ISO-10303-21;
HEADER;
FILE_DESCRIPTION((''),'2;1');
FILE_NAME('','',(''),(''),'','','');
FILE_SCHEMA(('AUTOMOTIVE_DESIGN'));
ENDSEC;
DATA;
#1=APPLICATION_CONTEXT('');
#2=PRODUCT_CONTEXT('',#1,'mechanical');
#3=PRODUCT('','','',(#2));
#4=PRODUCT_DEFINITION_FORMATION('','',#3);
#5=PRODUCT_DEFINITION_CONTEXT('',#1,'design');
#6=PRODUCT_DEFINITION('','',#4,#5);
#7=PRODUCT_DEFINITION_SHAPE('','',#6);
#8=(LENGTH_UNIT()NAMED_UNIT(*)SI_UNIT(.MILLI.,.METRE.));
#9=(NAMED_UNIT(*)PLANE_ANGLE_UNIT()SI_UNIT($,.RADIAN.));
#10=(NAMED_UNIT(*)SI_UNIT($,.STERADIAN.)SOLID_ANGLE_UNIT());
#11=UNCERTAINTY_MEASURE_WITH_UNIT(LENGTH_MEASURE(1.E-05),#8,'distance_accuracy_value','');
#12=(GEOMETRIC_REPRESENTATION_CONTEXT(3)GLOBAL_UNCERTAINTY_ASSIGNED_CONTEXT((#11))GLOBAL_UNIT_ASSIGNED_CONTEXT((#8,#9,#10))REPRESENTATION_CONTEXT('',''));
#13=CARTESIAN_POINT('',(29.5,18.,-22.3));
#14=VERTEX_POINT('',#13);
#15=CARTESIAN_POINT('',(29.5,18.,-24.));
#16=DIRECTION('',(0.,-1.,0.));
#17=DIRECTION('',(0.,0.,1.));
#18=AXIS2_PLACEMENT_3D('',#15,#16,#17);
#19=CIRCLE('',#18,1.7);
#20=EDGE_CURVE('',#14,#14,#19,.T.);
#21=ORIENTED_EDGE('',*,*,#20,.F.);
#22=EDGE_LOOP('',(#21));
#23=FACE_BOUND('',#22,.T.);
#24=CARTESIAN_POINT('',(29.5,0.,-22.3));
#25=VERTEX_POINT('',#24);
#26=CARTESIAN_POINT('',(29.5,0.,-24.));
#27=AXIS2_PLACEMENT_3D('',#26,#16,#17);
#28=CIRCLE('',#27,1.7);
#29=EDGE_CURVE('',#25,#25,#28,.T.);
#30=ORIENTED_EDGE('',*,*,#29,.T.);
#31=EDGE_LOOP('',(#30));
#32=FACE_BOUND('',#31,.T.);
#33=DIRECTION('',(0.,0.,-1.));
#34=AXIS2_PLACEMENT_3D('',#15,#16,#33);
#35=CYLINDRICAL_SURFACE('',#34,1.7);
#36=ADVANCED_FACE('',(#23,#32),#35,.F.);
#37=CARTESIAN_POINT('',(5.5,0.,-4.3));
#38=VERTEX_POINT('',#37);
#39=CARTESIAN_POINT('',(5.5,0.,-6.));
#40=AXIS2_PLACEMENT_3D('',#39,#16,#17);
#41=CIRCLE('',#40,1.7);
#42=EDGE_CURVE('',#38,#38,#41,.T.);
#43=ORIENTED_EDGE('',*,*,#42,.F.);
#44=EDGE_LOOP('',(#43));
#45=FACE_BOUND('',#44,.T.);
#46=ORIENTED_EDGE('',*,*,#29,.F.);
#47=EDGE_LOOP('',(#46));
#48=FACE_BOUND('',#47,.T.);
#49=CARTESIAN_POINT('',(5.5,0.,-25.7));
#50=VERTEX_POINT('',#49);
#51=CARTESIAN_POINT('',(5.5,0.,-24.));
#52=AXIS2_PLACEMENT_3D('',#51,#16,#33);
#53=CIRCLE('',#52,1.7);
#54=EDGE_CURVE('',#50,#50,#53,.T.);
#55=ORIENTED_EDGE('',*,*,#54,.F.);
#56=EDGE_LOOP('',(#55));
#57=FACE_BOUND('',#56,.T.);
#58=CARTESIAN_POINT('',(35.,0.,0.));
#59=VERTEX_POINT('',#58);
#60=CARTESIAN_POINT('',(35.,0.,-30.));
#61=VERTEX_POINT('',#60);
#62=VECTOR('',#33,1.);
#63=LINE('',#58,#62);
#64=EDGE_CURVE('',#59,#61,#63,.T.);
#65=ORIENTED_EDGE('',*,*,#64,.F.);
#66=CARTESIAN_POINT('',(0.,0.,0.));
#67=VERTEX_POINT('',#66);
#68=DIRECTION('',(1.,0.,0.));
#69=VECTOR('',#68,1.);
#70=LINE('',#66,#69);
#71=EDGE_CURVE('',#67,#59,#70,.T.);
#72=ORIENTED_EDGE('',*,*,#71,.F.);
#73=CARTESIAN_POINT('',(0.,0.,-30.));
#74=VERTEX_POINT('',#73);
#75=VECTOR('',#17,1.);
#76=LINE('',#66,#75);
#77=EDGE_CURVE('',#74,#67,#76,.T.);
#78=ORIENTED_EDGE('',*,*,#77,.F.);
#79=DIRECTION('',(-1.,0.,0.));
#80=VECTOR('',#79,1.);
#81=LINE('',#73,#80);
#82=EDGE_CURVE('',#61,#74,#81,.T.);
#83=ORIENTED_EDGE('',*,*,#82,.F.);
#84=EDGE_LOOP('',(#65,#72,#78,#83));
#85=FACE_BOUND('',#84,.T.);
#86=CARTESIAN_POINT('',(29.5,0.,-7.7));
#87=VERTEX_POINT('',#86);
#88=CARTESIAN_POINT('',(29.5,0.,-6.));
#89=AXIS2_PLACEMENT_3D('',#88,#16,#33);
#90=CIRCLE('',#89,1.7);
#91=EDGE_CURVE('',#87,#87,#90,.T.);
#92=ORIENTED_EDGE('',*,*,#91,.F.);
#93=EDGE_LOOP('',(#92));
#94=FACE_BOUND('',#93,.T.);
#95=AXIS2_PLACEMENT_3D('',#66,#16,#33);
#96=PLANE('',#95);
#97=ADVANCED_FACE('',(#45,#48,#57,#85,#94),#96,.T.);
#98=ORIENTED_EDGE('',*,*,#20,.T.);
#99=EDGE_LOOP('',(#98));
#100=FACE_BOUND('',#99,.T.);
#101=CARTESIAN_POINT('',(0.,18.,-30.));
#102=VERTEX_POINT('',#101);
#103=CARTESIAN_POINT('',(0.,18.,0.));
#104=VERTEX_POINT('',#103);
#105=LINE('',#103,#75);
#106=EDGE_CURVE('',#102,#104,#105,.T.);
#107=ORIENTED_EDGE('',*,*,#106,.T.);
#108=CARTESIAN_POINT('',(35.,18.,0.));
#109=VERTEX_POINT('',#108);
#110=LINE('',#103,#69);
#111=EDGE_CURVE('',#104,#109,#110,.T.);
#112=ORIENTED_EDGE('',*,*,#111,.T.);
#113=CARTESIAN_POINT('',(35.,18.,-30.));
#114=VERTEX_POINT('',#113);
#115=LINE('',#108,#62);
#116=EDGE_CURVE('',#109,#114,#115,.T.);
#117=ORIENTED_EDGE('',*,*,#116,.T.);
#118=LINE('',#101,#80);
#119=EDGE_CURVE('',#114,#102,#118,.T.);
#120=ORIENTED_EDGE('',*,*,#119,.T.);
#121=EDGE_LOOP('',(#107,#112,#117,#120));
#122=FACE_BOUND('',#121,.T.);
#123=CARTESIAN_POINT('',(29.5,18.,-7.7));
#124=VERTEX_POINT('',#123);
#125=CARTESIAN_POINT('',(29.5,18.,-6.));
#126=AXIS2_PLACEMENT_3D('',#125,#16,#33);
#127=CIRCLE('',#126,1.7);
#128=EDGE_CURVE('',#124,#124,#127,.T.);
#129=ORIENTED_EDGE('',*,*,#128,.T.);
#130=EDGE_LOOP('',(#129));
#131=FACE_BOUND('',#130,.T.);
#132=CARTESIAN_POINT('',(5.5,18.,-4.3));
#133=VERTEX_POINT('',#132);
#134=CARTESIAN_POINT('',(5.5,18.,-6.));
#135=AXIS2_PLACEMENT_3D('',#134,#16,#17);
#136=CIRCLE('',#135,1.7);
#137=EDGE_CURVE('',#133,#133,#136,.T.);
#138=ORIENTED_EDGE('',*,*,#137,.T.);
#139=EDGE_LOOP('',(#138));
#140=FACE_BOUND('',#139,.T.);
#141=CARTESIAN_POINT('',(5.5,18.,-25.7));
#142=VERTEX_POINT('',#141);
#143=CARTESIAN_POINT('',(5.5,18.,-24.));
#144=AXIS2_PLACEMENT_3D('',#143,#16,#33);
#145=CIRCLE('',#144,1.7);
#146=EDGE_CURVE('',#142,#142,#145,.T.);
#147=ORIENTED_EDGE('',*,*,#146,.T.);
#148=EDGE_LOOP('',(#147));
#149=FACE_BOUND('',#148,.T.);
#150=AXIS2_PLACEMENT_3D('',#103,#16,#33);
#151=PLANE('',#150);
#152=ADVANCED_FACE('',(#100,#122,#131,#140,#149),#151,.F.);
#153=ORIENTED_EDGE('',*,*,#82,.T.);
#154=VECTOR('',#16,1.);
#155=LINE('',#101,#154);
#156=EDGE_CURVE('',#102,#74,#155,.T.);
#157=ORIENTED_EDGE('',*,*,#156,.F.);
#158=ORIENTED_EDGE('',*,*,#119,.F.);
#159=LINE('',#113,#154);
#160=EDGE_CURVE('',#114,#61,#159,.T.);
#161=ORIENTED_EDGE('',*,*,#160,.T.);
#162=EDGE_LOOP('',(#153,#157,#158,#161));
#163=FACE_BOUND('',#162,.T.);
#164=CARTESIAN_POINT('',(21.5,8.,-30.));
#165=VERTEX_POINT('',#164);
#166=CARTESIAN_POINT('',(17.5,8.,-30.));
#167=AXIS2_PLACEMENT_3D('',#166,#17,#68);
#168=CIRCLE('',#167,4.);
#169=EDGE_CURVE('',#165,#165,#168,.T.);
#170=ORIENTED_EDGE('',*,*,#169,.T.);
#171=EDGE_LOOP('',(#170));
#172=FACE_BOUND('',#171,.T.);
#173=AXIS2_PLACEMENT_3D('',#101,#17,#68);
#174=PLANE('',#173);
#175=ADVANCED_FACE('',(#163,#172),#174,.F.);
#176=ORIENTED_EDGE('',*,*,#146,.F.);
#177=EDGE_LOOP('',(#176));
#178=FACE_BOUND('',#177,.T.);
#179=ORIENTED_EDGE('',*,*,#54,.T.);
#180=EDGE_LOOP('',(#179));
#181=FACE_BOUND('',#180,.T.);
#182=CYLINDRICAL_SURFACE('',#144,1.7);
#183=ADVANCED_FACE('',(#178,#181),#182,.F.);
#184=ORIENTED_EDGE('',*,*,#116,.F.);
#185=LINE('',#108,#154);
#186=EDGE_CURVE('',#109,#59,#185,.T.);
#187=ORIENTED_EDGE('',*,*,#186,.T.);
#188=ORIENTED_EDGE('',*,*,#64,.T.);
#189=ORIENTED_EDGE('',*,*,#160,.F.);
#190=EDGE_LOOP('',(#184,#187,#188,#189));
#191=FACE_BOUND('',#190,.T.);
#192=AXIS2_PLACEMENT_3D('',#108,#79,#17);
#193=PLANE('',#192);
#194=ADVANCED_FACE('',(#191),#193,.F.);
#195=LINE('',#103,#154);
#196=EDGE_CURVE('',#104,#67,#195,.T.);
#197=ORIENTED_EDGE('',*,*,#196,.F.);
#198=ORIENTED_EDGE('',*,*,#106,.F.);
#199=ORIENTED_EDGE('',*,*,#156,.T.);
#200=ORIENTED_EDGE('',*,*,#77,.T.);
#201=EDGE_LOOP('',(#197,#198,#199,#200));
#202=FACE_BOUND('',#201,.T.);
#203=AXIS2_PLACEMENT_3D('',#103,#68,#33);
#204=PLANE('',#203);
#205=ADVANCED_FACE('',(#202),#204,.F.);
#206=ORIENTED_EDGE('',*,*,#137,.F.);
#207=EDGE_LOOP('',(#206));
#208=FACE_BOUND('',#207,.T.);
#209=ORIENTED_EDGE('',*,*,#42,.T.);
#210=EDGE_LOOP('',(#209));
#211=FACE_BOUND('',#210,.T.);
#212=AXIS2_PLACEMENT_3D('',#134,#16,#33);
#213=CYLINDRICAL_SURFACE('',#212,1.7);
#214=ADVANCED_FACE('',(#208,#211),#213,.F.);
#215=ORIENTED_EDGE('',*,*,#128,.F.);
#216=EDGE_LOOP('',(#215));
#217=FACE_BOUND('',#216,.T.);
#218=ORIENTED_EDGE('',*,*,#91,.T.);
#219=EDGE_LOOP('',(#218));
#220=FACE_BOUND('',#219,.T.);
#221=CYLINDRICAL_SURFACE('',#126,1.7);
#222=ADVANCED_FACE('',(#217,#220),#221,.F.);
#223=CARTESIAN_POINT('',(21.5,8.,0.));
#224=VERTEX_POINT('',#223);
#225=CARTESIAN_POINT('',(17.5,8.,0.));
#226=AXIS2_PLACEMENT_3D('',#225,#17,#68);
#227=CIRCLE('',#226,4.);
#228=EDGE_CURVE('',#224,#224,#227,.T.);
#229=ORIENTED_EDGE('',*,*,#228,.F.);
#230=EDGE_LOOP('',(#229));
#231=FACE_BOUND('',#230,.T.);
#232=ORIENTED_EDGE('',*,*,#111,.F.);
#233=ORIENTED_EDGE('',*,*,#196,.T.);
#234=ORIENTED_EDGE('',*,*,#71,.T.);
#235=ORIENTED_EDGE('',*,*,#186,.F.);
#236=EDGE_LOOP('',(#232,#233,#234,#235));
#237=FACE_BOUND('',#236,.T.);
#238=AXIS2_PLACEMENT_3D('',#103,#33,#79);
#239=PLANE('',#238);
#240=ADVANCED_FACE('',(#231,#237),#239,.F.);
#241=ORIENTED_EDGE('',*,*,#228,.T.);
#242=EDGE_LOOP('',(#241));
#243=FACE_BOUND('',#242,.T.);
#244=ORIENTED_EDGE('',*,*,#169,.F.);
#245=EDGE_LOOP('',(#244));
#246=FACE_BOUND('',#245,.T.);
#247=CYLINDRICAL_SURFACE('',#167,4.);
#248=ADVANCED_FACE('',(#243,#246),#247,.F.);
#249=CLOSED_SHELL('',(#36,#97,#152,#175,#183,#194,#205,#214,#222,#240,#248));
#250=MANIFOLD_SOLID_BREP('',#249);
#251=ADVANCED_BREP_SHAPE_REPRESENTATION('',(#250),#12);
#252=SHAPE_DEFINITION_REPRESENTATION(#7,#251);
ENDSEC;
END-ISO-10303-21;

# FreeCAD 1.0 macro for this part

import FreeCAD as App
import Part
import Sketcher
from FreeCAD import Vector


def add_polygon(sketch, points):
    """Adds a closed chain of lines whose ends are joined by coincident constraints."""
    first, n = sketch.GeometryCount, len(points)
    for a, b in zip(points, points[1:] + points[:1]):
        sketch.addGeometry(Part.LineSegment(App.Vector(*a, 0), App.Vector(*b, 0)), False)
    for i in range(n):
        sketch.addConstraint(Sketcher.Constraint("Coincident", first + i, 2, first + (i + 1) % n, 1))

doc = App.newDocument("Part")
body = doc.addObject("PartDesign::Body", "Body")

# Sketch on XZ plane
sketch1 = doc.addObject("Sketcher::SketchObject", "Sketch")
body.addObject(sketch1)
sketch1.AttachmentSupport = (doc.XZ_Plane, [""])
sketch1.MapMode = "FlatFace"
add_polygon(sketch1, [(0, -30), (0, 0), (35, 0), (35, -30)])  # lines 0-3
sketch1.addConstraint([
    Sketcher.Constraint("Vertical", 0),
    Sketcher.Constraint("Horizontal", 1),
    Sketcher.Constraint("Vertical", 2),
    Sketcher.Constraint("Horizontal", 3),
    Sketcher.Constraint("Coincident", 0, 2, -1, 1),
    Sketcher.Constraint("DistanceX", 1, 1, 1, 2, 35.0),
    Sketcher.Constraint("DistanceY", 0, 1, 0, 2, 30.0),
])
pad1 = doc.addObject("PartDesign::Pad", "Pad")
body.addObject(pad1)
pad1.Profile = sketch1
pad1.Length = 18
pad1.Reversed = True

# Sketch on XZ plane
sketch2 = doc.addObject("Sketcher::SketchObject", "Sketch001")
body.addObject(sketch2)
sketch2.AttachmentSupport = (doc.XZ_Plane, [""])
sketch2.MapMode = "FlatFace"
sketch2.addGeometry([
    Part.Circle(Vector(5.5, -24, 0), Vector(0, 0, 1), 1.7),
    Part.Circle(Vector(29.5, -24, 0), Vector(0, 0, 1), 1.7),
    Part.Circle(Vector(29.5, -6, 0), Vector(0, 0, 1), 1.7),
    Part.Circle(Vector(5.5, -6, 0), Vector(0, 0, 1), 1.7),
], False)
sketch2.addConstraint([
    Sketcher.Constraint("Equal", 0, 1),
    Sketcher.Constraint("Equal", 1, 2),
    Sketcher.Constraint("Equal", 2, 3),
    Sketcher.Constraint("Horizontal", 0, 3, 1, 3),
    Sketcher.Constraint("Horizontal", 2, 3, 3, 3),
    Sketcher.Constraint("Vertical", 1, 3, 2, 3),
    Sketcher.Constraint("Vertical", 0, 3, 3, 3),
    Sketcher.Constraint("Diameter", 0, 3.4),
    Sketcher.Constraint("DistanceY", 0, 3, -1, 1, 24.0),
    Sketcher.Constraint("DistanceY", 2, 3, -1, 1, 6.0),
    Sketcher.Constraint("DistanceX", 0, 3, 1, 3, 24.0),
    Sketcher.Constraint("DistanceX", -1, 1, 0, 3, 5.5),
])
pocket1 = doc.addObject("PartDesign::Pocket", "Pocket")
body.addObject(pocket1)
pocket1.Profile = sketch2
pocket1.Type = "ThroughAll"

# Sketch on XY plane
sketch3 = doc.addObject("Sketcher::SketchObject", "Sketch002")
body.addObject(sketch3)
sketch3.AttachmentSupport = (doc.XY_Plane, [""])
sketch3.MapMode = "FlatFace"
sketch3.addGeometry(Part.Circle(Vector(17.5, 8, 0), Vector(0, 0, 1), 4), False)
sketch3.addConstraint([
    Sketcher.Constraint("Diameter", 0, 8.0),
    Sketcher.Constraint("DistanceY", -1, 1, 0, 3, 8.0),
    Sketcher.Constraint("DistanceX", -1, 1, 0, 3, 17.5),
])
pocket2 = doc.addObject("PartDesign::Pocket", "Pocket001")
body.addObject(pocket2)
pocket2.Profile = sketch3
pocket2.Type = "ThroughAll"

doc.recompute()
